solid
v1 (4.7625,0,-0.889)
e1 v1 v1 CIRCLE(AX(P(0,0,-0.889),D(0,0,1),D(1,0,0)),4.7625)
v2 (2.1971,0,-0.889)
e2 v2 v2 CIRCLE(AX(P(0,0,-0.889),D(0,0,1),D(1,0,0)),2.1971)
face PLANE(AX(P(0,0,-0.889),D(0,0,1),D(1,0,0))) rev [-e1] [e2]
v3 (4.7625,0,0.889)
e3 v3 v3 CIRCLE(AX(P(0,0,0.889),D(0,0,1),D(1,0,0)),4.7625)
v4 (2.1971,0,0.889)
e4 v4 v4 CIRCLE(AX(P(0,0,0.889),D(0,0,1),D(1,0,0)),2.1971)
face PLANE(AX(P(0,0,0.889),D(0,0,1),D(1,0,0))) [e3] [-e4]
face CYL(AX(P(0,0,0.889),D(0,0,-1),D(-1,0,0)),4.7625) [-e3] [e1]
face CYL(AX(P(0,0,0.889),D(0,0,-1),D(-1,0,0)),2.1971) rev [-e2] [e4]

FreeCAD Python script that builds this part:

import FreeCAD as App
import Part
import Sketcher
from FreeCAD import Vector
Q = App.Units.Quantity

doc = App.newDocument("Part")
body = doc.addObject("PartDesign::Body", "Body")

# Sketch on XY plane
sketch1 = body.newObject("Sketcher::SketchObject", "Sketch")
sketch1.AttachmentSupport = (doc.getObject("XY_Plane"), [""])
sketch1.MapMode = "FlatFace"
sketch1.addGeometry([
    Part.Circle(Vector(0, 0, 0), Vector(0, 0, 1), 4.8),
    Part.Circle(Vector(0, 0, 0), Vector(0, 0, 1), 2.2),
], False)
sketch1.addConstraint([
    Sketcher.Constraint("Coincident", 0, 3, -1, 1),
    Sketcher.Constraint("Coincident", 1, 3, -1, 1),
    Sketcher.Constraint("Diameter", 0, Q("0.375 in")),
    Sketcher.Constraint("Diameter", 1, Q("0.173 in")),
])
pad1 = body.newObject("PartDesign::Pad", "Pad")
pad1.Profile = sketch1
pad1.Type = "TwoLengths"
pad1.Length = Q("0.035 in")
pad1.Length2 = Q("0.035 in")

doc.recompute()
